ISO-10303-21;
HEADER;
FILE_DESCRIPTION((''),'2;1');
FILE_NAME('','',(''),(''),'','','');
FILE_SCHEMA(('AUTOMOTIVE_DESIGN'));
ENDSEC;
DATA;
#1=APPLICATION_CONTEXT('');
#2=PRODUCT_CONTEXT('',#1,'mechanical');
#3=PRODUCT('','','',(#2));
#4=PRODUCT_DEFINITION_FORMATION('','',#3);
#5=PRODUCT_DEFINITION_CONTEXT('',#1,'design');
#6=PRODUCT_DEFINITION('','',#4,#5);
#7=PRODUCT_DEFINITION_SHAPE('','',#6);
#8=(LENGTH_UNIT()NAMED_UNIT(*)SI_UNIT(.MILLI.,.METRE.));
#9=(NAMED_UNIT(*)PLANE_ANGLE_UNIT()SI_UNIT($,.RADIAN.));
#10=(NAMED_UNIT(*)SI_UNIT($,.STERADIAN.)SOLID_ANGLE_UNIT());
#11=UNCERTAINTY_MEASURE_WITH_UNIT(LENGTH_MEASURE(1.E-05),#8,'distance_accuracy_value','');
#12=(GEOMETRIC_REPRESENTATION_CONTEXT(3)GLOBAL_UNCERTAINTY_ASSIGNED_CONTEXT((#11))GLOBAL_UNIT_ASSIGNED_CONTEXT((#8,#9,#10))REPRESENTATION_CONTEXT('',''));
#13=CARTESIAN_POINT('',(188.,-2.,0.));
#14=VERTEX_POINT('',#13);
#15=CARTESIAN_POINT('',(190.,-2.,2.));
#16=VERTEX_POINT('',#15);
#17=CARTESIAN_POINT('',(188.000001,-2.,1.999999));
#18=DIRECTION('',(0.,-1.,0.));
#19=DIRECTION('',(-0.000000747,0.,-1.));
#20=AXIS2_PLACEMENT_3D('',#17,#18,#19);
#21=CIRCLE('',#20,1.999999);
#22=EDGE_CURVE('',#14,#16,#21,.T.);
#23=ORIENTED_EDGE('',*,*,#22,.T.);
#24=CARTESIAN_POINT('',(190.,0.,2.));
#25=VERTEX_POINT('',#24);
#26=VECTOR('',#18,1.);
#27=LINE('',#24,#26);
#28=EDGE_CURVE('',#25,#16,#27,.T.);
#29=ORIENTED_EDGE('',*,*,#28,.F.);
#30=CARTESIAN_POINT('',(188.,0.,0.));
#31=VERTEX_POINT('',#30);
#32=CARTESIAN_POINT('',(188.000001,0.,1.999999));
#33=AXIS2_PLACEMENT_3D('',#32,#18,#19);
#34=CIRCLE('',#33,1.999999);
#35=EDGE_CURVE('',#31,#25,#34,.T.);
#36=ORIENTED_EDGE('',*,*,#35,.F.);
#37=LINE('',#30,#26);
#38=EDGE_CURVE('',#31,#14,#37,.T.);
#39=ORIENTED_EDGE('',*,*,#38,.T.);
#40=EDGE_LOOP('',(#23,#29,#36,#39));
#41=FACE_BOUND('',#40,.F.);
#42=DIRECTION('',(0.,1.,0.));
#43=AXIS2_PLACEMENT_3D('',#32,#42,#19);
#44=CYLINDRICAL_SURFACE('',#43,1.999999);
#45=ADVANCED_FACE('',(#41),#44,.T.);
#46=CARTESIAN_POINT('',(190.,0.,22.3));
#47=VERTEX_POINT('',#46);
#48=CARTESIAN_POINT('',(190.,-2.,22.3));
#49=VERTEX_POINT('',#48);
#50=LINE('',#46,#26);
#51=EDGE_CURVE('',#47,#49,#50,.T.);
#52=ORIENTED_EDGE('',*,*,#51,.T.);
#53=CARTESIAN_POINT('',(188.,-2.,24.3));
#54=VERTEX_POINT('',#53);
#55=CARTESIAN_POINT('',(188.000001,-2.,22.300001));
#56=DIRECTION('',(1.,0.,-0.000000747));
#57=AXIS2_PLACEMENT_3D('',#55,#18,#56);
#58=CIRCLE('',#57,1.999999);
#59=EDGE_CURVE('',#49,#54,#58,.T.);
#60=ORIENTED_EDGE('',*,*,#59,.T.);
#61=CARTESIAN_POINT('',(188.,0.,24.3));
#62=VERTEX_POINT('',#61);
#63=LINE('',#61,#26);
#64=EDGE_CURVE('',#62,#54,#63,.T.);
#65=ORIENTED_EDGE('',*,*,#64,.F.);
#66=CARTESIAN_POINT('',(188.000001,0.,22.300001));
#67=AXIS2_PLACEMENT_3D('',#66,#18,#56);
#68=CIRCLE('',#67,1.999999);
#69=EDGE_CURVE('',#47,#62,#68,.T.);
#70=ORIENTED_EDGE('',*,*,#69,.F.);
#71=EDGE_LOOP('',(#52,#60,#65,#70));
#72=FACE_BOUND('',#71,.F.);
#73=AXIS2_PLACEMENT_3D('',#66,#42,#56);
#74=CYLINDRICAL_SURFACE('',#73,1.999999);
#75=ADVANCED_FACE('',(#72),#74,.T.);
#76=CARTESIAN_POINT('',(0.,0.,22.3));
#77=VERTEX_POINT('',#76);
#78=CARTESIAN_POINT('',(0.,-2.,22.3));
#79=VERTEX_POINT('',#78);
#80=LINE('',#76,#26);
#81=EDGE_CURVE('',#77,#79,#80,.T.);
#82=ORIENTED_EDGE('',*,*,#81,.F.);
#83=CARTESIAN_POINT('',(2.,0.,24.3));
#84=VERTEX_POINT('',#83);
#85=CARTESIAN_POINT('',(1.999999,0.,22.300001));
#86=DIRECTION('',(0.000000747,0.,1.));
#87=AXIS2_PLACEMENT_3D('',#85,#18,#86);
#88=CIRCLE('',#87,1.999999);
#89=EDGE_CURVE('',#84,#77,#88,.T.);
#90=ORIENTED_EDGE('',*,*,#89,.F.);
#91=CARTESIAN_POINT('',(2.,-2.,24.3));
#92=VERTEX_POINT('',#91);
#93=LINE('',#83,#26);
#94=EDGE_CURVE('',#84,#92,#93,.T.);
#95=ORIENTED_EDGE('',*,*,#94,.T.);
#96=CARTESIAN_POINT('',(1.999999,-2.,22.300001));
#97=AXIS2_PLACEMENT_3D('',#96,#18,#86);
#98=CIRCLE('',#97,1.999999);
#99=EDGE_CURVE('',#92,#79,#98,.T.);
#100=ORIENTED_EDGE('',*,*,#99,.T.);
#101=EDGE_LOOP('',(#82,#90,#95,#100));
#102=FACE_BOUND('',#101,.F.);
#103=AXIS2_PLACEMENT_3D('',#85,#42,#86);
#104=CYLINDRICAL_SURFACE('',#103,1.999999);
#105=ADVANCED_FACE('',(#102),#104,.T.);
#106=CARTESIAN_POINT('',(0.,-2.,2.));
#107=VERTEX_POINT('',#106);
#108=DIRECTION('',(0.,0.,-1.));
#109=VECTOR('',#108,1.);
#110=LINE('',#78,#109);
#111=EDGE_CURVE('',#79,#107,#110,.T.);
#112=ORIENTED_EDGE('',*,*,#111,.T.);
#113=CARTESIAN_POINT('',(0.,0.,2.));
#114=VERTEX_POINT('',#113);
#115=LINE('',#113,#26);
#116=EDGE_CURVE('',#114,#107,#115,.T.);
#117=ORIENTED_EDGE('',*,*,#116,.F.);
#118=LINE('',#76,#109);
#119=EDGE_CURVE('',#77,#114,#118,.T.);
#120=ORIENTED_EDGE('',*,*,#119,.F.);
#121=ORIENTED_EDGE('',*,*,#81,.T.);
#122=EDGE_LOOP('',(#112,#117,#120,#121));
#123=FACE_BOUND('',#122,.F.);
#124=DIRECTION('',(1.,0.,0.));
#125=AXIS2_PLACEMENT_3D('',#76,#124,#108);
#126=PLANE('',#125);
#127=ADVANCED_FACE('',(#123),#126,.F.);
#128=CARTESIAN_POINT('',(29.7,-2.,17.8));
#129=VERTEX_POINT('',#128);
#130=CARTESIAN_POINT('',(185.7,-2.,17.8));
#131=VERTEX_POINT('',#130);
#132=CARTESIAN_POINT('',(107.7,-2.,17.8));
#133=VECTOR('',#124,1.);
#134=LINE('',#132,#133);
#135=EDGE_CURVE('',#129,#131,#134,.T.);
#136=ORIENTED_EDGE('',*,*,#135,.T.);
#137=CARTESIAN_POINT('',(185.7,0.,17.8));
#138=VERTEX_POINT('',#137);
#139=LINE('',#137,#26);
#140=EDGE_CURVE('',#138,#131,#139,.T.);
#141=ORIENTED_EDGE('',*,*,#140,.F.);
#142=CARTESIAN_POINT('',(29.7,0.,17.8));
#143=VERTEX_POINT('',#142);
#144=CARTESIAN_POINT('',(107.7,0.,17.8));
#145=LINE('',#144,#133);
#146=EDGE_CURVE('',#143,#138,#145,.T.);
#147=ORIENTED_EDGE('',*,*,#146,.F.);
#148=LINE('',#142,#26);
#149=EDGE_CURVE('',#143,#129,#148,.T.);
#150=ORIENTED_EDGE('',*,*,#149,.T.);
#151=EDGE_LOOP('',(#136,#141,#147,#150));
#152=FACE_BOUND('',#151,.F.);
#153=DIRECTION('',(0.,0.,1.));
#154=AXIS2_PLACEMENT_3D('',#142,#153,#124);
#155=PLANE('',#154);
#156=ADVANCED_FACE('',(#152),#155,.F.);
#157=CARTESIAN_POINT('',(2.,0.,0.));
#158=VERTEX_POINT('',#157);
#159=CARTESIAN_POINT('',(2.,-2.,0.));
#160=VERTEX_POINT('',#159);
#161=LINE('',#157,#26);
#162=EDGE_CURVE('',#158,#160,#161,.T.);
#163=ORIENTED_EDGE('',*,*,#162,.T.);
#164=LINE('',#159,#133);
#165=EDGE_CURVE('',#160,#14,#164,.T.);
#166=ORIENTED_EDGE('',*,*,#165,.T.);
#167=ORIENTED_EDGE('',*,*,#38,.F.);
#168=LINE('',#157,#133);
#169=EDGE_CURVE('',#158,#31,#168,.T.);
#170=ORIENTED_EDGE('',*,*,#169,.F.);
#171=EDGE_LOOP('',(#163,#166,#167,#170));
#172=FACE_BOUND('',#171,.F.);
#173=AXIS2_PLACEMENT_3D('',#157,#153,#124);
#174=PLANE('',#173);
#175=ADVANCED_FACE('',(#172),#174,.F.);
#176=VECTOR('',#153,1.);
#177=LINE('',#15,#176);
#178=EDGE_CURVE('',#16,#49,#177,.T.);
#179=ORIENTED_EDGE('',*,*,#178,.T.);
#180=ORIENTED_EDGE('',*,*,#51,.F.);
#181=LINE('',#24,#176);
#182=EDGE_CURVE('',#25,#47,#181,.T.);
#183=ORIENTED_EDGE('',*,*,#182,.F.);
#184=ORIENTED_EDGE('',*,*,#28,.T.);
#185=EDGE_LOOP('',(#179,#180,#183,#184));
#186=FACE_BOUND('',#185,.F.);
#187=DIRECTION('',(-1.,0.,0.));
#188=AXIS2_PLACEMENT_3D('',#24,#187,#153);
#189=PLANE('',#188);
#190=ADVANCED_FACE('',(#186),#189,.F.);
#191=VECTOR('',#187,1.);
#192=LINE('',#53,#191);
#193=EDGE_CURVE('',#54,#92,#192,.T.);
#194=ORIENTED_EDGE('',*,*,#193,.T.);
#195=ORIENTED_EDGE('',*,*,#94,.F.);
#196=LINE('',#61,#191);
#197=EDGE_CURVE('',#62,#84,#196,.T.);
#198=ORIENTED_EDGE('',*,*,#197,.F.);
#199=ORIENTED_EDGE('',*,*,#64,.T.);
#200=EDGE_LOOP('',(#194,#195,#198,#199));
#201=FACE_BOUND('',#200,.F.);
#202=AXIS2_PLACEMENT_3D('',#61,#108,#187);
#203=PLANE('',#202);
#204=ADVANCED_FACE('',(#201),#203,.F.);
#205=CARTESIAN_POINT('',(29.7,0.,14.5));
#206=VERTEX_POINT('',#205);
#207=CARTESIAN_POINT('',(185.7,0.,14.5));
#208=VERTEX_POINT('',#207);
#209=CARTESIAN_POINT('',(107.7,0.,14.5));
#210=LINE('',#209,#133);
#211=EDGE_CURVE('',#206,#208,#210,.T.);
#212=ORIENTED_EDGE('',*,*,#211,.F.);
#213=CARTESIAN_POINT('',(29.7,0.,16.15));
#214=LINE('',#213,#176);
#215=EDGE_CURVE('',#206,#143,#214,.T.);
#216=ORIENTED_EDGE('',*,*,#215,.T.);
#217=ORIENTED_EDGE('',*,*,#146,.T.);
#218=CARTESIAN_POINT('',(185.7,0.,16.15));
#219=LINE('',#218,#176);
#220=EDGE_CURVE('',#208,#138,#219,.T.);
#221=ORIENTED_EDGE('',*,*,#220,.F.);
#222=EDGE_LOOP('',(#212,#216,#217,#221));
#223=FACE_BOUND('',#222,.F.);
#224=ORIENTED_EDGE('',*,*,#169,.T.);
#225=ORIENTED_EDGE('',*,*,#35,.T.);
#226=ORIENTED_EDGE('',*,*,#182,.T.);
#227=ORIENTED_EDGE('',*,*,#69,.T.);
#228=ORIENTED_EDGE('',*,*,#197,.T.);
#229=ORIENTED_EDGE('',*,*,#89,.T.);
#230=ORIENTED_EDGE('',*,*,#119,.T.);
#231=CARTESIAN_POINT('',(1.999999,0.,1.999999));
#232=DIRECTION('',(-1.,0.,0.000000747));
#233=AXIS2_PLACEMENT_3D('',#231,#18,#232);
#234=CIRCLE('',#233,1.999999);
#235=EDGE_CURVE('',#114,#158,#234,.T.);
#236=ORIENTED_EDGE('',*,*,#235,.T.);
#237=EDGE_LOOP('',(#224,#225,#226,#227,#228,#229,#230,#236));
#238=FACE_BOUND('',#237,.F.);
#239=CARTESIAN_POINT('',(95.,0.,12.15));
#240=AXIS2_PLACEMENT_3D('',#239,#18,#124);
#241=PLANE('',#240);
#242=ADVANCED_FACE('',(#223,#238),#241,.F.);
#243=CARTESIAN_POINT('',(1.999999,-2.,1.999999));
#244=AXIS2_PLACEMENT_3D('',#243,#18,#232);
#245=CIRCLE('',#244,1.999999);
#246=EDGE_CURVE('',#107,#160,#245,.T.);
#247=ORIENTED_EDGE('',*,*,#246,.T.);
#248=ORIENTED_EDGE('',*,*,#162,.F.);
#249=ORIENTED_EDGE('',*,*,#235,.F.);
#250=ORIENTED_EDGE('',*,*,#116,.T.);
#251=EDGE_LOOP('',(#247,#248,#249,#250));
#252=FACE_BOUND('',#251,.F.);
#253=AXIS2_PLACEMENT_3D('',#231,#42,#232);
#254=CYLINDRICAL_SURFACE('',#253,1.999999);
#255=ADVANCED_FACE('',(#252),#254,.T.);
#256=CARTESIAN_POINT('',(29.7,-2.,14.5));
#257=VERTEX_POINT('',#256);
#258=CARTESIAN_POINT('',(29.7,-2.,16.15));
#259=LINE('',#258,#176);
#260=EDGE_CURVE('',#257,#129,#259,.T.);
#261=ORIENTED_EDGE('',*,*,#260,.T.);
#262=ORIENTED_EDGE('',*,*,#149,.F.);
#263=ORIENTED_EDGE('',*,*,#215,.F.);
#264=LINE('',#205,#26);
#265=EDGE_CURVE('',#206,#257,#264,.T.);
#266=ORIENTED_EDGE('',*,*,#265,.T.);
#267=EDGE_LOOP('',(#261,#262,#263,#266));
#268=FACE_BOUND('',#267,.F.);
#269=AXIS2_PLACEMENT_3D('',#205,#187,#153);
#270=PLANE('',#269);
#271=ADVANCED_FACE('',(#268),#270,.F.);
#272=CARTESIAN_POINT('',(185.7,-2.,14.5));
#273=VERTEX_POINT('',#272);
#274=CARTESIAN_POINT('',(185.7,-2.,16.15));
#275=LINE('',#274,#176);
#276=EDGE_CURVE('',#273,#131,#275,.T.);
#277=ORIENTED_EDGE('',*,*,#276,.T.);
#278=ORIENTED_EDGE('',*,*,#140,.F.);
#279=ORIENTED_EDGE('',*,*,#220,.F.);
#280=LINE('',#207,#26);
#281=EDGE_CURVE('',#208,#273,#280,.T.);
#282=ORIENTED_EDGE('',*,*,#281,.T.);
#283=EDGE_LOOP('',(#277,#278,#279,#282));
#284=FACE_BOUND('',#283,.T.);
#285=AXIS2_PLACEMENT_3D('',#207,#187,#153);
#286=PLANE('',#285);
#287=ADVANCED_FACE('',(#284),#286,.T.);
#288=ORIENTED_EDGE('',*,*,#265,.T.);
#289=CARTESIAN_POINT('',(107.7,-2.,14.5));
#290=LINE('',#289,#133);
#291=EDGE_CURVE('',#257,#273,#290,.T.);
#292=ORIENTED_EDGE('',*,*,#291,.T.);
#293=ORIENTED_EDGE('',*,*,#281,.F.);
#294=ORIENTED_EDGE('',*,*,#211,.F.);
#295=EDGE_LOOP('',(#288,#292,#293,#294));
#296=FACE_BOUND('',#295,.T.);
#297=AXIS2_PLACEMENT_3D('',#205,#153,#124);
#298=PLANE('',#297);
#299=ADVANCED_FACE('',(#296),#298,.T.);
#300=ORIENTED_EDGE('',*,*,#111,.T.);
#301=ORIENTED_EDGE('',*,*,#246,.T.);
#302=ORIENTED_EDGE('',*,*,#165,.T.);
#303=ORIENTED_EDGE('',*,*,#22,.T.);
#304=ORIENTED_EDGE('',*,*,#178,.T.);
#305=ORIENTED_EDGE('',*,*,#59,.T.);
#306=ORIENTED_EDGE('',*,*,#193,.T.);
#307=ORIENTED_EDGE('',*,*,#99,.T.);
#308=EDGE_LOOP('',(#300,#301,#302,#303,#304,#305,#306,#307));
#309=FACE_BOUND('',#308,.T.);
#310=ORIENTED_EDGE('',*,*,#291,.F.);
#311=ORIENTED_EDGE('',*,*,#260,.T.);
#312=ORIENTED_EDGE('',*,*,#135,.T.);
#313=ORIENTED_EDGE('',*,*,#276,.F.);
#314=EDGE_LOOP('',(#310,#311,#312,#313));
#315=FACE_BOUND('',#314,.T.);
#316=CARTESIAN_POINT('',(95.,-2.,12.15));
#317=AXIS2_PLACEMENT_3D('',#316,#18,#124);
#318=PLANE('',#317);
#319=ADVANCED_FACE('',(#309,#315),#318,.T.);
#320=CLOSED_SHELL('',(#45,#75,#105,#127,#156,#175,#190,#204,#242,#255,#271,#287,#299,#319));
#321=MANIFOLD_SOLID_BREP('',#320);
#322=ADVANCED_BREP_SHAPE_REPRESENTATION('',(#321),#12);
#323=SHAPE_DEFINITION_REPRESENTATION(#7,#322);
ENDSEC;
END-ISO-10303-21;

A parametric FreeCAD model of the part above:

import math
import FreeCAD as App
import Part
import Sketcher
from FreeCAD import Vector

doc = App.newDocument("Part")
params = doc.addObject("Spreadsheet::Sheet", "Params")
for row, (alias, value) in enumerate([
    ("sketch1_radius", "1.999999 mm"),
    ("sketch1_width", "186 mm"),
    ("sketch1_width2", "156 mm"),
    ("sketch1_height", "20.3 mm"),
    ("sketch1_height2", "3.3 mm"),
    ("pad1_length", "2 mm"),
], start=1):
    params.set(f"A{row}", alias)
    params.set(f"B{row}", "=" + value)
    params.setAlias(f"B{row}", alias)

body = doc.addObject("PartDesign::Body", "Body")

# Sketch on XZ plane
sketch1 = doc.addObject("Sketcher::SketchObject", "Sketch")
body.addObject(sketch1)
sketch1.AttachmentSupport = (doc.XZ_Plane, [""])
sketch1.MapMode = "FlatFace"
sketch1.addGeometry([
    Part.ArcOfCircle(Part.Circle(Vector(2, 2, 0), Vector(0, 0, 1), 2), math.radians(180), math.radians(270)),  # 0
    Part.LineSegment(Vector(2, 0, 0), Vector(188, 0, 0)),  # 1
    Part.ArcOfCircle(Part.Circle(Vector(188, 2, 0), Vector(0, 0, 1), 2), math.radians(-90), math.radians(0)),  # 2
    Part.LineSegment(Vector(190, 2, 0), Vector(190, 22.3, 0)),  # 3
    Part.ArcOfCircle(Part.Circle(Vector(188, 22.3, 0), Vector(0, 0, 1), 2), math.radians(0), math.radians(90)),  # 4
    Part.LineSegment(Vector(188, 24.3, 0), Vector(2, 24.3, 0)),  # 5
    Part.ArcOfCircle(Part.Circle(Vector(2, 22.3, 0), Vector(0, 0, 1), 2), math.radians(90), math.radians(180)),  # 6
    Part.LineSegment(Vector(0, 22.3, 0), Vector(0, 2, 0)),  # 7
    Part.LineSegment(Vector(185.7, 14.5, 0), Vector(29.7, 14.5, 0)),  # 8
    Part.LineSegment(Vector(29.7, 14.5, 0), Vector(29.7, 17.8, 0)),  # 9
    Part.LineSegment(Vector(29.7, 17.8, 0), Vector(185.7, 17.8, 0)),  # 10
    Part.LineSegment(Vector(185.7, 17.8, 0), Vector(185.7, 14.5, 0)),  # 11
], False)
sketch1.addConstraint([
    Sketcher.Constraint("Tangent", 0, 2, 1, 1),
    Sketcher.Constraint("Tangent", 1, 2, 2, 1),
    Sketcher.Constraint("Tangent", 2, 2, 3, 1),
    Sketcher.Constraint("Tangent", 3, 2, 4, 1),
    Sketcher.Constraint("Tangent", 4, 2, 5, 1),
    Sketcher.Constraint("Tangent", 5, 2, 6, 1),
    Sketcher.Constraint("Tangent", 6, 2, 7, 1),
    Sketcher.Constraint("Tangent", 7, 2, 0, 1),
    Sketcher.Constraint("Coincident", 8, 2, 9, 1),
    Sketcher.Constraint("Coincident", 9, 2, 10, 1),
    Sketcher.Constraint("Coincident", 10, 2, 11, 1),
    Sketcher.Constraint("Coincident", 11, 2, 8, 1),
    Sketcher.Constraint("Horizontal", 1),
    Sketcher.Constraint("Vertical", 3),
    Sketcher.Constraint("Horizontal", 5),
    Sketcher.Constraint("Vertical", 7),
    Sketcher.Constraint("Horizontal", 8),
    Sketcher.Constraint("Vertical", 9),
    Sketcher.Constraint("Horizontal", 10),
    Sketcher.Constraint("Vertical", 11),
    Sketcher.Constraint("Equal", 0, 2),
    Sketcher.Constraint("Equal", 2, 4),
    Sketcher.Constraint("Equal", 4, 6),
    Sketcher.Constraint("PointOnObject", 0, 2, -1),
    Sketcher.Constraint("PointOnObject", 6, 2, -2),
    Sketcher.Constraint("Radius", 0, 1.999999),
    Sketcher.Constraint("DistanceX", 1, 1, 1, 2, 186.0),
    Sketcher.Constraint("DistanceX", 8, 2, 8, 1, 156.0),
    Sketcher.Constraint("DistanceY", 3, 1, 3, 2, 20.3),
    Sketcher.Constraint("DistanceY", 9, 1, 9, 2, 3.3),
    Sketcher.Constraint("DistanceX", -1, 1, 8, 2, 29.7),
    Sketcher.Constraint("DistanceY", -1, 1, 8, 2, 14.5),
])
sketch1.setExpression("Constraints[25]", "Params.sketch1_radius")
sketch1.setExpression("Constraints[26]", "Params.sketch1_width")
sketch1.setExpression("Constraints[27]", "Params.sketch1_width2")
sketch1.setExpression("Constraints[28]", "Params.sketch1_height")
sketch1.setExpression("Constraints[29]", "Params.sketch1_height2")
pad1 = doc.addObject("PartDesign::Pad", "Pad")
body.addObject(pad1)
pad1.Profile = sketch1
pad1.setExpression("Length", "Params.pad1_length")

doc.recompute()
